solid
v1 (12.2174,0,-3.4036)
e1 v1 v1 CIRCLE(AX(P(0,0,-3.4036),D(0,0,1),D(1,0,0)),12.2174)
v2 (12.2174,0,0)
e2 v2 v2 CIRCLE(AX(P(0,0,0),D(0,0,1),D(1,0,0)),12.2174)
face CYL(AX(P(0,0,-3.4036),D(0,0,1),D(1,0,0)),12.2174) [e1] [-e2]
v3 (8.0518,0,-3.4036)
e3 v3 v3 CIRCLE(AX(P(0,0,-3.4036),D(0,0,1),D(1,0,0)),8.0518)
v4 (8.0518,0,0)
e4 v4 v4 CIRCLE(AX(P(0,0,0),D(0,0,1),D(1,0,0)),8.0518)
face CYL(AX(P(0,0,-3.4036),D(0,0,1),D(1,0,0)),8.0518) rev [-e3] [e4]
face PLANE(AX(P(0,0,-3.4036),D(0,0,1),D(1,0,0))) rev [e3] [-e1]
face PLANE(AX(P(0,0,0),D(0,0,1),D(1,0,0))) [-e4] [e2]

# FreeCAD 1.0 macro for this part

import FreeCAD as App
import Part
import Sketcher
Q = App.Units.Quantity

doc = App.newDocument("Part")
body = doc.addObject("PartDesign::Body", "Body")

# Sketch on XY plane
sketch1 = doc.addObject("Sketcher::SketchObject", "Sketch")
body.addObject(sketch1)
sketch1.AttachmentSupport = (doc.XY_Plane, [""])
sketch1.MapMode = "FlatFace"
sketch1.addGeometry([
    Part.Circle(App.Vector(0, 0, 0), App.Vector(0, 0, 1), 12),
    Part.Circle(App.Vector(0, 0, 0), App.Vector(0, 0, 1), 8),
], False)
sketch1.addConstraint([
    Sketcher.Constraint("Coincident", 0, 3, -1, 1),
    Sketcher.Constraint("Coincident", 1, 3, -1, 1),
    Sketcher.Constraint("Diameter", 0, Q("0.962 in")),
    Sketcher.Constraint("Diameter", 1, Q("0.634 in")),
])
pad1 = doc.addObject("PartDesign::Pad", "Pad")
body.addObject(pad1)
pad1.Profile = sketch1
pad1.Length = Q("0.134 in")
pad1.Reversed = True

doc.recompute()
